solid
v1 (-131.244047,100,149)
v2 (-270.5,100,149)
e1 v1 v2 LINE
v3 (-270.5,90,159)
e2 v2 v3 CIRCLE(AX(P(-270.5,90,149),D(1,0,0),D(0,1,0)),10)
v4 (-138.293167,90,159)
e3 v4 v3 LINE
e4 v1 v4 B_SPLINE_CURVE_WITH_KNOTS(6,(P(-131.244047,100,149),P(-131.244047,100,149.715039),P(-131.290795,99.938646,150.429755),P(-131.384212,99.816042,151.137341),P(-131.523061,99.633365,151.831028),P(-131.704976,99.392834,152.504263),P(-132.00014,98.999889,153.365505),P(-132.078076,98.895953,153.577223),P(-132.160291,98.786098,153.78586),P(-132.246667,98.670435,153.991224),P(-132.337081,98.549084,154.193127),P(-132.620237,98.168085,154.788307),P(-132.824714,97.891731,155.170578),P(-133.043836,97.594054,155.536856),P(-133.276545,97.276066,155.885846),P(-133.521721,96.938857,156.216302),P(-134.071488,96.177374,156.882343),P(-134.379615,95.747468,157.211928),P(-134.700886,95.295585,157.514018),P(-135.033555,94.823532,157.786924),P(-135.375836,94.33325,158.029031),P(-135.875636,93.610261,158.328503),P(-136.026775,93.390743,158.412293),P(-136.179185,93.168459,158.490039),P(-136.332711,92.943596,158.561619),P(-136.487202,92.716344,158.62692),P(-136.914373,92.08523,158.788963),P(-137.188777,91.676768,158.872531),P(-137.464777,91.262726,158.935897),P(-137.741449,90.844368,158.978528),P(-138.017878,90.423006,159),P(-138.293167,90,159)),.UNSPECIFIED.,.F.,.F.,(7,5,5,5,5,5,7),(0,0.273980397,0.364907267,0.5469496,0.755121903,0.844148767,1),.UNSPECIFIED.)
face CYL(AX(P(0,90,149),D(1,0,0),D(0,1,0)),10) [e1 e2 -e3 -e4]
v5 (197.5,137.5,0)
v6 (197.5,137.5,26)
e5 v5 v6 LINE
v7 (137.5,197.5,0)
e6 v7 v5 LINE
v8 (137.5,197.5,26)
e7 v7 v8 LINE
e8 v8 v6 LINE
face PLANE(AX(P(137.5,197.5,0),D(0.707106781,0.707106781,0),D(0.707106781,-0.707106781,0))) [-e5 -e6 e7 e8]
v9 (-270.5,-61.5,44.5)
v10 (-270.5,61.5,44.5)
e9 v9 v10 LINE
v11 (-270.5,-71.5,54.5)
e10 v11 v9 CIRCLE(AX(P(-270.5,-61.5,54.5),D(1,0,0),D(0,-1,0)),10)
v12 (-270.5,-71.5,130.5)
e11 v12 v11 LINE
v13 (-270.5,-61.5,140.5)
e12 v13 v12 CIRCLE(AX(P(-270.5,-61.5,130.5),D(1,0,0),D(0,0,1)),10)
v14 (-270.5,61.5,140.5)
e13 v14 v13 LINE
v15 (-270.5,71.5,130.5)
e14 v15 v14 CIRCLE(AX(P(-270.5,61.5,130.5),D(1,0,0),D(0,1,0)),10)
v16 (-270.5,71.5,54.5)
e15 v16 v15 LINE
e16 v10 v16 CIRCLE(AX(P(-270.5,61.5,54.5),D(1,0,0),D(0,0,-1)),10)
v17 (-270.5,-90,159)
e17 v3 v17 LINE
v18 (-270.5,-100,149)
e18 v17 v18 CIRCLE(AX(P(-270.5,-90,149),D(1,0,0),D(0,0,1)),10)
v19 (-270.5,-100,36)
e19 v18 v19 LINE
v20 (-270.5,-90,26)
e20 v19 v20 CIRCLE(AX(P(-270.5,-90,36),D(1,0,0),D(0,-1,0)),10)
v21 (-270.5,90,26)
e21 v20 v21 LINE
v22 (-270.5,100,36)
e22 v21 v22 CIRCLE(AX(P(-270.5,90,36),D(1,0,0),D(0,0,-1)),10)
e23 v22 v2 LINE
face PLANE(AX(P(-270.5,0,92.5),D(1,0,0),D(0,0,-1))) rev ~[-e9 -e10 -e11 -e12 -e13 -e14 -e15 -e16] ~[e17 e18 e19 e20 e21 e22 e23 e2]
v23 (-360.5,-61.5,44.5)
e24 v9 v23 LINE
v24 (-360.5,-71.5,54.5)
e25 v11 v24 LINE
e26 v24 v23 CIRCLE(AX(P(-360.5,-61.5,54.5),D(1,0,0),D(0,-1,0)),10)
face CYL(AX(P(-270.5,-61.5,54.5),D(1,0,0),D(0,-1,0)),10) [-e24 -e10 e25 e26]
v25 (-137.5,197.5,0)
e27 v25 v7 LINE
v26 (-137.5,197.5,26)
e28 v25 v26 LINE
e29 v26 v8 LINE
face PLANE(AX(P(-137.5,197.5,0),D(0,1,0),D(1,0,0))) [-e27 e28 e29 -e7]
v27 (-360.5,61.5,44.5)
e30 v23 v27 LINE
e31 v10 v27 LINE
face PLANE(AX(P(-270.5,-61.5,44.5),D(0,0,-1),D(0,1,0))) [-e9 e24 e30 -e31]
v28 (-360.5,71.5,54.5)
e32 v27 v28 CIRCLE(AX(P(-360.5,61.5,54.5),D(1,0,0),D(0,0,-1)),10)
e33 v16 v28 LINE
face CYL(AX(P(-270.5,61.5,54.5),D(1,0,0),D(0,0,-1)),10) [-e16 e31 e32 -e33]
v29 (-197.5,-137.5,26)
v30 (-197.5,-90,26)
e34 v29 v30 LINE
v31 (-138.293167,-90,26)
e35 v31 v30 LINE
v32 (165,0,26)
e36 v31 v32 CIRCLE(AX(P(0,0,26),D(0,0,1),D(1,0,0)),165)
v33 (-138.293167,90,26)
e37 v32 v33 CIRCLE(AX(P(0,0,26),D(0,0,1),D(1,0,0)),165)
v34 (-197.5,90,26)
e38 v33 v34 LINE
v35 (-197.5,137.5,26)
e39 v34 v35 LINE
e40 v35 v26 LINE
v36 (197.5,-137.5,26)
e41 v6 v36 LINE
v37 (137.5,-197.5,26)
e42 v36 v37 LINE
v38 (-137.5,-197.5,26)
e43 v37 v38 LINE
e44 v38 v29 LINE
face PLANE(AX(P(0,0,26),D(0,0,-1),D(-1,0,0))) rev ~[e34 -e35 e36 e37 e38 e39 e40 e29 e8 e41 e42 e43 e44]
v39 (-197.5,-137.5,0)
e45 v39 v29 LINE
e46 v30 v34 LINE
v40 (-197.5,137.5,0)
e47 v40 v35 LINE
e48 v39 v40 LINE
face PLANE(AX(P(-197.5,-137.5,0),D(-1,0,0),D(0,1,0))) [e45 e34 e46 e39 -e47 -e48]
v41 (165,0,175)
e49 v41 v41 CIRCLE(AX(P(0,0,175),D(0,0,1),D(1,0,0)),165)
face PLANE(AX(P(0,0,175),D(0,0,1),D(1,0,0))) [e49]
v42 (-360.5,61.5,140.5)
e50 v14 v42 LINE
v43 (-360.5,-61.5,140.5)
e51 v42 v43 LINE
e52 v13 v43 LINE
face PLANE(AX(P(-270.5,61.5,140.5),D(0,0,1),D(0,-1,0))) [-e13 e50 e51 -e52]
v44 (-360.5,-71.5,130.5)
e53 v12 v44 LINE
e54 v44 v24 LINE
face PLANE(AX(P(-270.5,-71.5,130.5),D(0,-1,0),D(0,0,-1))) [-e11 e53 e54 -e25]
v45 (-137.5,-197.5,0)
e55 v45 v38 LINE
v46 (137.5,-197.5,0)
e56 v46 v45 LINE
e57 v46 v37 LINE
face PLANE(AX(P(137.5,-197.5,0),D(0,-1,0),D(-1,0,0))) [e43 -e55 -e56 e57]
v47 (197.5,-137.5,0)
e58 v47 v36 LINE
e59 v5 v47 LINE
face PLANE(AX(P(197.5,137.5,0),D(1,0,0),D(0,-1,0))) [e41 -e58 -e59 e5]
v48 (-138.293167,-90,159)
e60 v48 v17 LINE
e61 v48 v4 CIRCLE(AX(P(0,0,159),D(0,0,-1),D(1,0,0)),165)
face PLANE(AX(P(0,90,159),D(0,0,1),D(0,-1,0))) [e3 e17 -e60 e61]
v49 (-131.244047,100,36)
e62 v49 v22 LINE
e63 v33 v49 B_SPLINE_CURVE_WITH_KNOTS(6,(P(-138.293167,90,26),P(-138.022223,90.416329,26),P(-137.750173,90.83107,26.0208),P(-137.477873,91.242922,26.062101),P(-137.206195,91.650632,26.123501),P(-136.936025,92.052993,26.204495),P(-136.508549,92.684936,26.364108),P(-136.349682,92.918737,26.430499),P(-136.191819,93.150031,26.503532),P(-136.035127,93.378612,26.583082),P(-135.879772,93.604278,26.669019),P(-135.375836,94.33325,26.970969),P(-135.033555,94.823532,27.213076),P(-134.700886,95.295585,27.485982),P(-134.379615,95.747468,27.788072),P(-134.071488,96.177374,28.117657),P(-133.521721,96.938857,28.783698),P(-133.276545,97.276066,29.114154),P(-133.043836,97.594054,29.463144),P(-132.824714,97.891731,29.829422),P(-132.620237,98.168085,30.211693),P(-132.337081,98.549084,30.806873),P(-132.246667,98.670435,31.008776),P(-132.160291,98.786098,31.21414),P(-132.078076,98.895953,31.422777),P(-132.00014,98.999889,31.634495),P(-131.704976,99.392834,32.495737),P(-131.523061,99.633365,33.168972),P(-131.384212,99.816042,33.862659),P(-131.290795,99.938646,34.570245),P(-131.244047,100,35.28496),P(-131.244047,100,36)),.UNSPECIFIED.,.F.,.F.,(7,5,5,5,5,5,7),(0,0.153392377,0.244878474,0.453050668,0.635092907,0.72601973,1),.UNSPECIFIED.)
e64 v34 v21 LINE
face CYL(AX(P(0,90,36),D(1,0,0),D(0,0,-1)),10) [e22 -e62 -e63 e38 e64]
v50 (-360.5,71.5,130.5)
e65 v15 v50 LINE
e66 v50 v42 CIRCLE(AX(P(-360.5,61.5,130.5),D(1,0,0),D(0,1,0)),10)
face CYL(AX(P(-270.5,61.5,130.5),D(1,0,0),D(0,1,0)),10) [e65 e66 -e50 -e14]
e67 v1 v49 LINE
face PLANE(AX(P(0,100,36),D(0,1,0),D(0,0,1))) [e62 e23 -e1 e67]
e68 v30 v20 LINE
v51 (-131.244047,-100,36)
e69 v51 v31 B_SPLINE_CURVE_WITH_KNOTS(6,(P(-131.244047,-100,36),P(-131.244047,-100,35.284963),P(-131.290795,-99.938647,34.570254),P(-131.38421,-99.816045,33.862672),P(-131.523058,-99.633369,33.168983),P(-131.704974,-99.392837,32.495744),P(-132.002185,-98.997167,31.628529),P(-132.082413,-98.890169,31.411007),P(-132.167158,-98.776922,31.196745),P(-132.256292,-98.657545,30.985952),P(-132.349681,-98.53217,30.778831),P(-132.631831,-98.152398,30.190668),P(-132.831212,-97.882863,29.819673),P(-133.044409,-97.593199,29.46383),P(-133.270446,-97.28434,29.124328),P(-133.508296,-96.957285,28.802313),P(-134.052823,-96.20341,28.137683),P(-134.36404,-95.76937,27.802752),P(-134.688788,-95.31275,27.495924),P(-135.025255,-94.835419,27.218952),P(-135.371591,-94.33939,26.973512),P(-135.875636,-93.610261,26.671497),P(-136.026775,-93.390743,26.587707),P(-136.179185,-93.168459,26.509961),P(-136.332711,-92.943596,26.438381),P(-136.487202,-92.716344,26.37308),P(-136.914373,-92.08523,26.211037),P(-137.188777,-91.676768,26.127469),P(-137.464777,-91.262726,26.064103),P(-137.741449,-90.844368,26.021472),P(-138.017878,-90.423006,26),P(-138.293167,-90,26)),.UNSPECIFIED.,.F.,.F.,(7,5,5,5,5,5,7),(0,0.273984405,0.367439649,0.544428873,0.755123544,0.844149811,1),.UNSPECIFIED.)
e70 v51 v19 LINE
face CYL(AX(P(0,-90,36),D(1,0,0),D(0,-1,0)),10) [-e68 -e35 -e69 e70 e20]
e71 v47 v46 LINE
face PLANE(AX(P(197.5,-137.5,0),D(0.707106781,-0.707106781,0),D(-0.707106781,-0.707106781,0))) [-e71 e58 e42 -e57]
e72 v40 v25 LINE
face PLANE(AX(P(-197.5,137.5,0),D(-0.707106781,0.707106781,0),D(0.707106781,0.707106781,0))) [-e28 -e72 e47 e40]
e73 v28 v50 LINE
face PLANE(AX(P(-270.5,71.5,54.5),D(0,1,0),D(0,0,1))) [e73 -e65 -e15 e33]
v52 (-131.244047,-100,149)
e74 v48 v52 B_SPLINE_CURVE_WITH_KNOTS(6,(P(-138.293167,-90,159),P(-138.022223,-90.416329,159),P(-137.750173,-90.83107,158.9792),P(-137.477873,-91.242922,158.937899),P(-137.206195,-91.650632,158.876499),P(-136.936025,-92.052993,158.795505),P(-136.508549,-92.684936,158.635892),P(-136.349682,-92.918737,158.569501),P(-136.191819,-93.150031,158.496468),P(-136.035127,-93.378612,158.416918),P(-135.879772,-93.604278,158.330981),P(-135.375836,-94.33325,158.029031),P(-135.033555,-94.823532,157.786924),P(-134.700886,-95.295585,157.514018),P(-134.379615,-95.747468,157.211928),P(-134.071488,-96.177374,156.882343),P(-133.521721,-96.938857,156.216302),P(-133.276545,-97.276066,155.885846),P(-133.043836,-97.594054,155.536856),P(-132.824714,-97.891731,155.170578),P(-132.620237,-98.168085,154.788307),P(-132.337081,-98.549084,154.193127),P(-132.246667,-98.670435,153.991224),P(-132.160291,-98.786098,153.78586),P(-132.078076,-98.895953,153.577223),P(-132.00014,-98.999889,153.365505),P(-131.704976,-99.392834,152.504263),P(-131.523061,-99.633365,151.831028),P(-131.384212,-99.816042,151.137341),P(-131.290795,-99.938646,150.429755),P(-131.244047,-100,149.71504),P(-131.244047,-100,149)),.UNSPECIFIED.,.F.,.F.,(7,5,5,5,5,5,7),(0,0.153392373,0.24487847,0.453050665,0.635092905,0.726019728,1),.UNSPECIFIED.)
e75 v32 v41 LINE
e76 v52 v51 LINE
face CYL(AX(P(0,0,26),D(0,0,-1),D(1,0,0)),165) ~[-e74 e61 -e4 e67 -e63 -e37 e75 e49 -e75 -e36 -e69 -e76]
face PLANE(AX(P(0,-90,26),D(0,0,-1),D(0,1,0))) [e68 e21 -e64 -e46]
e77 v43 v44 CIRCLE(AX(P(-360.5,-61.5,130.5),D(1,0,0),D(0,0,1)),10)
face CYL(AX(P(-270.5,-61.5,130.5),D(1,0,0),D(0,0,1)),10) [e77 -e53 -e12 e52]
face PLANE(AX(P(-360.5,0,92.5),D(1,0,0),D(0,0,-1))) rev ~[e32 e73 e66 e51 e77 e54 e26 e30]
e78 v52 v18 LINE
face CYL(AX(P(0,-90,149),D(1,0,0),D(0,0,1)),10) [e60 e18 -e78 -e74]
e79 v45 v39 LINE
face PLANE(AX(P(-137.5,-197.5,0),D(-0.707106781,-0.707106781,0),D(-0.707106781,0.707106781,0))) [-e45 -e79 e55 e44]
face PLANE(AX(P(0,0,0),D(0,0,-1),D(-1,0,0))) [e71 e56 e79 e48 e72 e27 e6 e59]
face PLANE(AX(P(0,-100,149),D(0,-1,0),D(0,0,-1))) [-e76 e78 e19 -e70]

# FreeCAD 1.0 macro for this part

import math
import FreeCAD as App
import Part
import Sketcher

V = App.Vector


def add_polygon(sketch, points):
    """Adds a closed chain of lines whose ends are joined by coincident constraints."""
    first, n = sketch.GeometryCount, len(points)
    for a, b in zip(points, points[1:] + points[:1]):
        sketch.addGeometry(Part.LineSegment(App.Vector(*a, 0), App.Vector(*b, 0)), False)
    for i in range(n):
        sketch.addConstraint(Sketcher.Constraint("Coincident", first + i, 2, first + (i + 1) % n, 1))

doc = App.newDocument("Part")
body = doc.addObject("PartDesign::Body", "Body")

sketch1 = body.newObject("Sketcher::SketchObject", "Sketch")
sketch1.AttachmentSupport = (doc.getObject("XY_Plane"), [""])
sketch1.MapMode = "FlatFace"
add_polygon(sketch1, [(-138, 198), (-198, 138), (-198, -138), (-138, -198), (138, -198), (198, -138), (198, 138), (138, 198)])
sketch1.addConstraint([
    Sketcher.Constraint("Vertical", 1),
    Sketcher.Constraint("Horizontal", 3),
    Sketcher.Constraint("Vertical", 5),
    Sketcher.Constraint("Horizontal", 7),
    Sketcher.Constraint("Symmetric", 0, 2, 4, 2, -1, 1),
    Sketcher.Constraint("Symmetric", 2, 2, 6, 2, -1, 1),
    Sketcher.Constraint("Perpendicular", 0, 2),
    Sketcher.Constraint("Perpendicular", 2, 4),
    Sketcher.Constraint("Perpendicular", 4, 6),
    Sketcher.Constraint("Horizontal", 1, 2, 4, 2),
    Sketcher.Constraint("Vertical", 3, 2, 6, 2),
    Sketcher.Constraint("Equal", 7, 1),
    Sketcher.Constraint("DistanceX", 3, 1, 3, 2, 275.0),
    Sketcher.Constraint("DistanceX", 1, 2, 2, 2, 60.0),
])
pad1 = body.newObject("PartDesign::Pad", "Pad")
pad1.Profile = sketch1
pad1.Length = 26

sketch2 = body.newObject("Sketcher::SketchObject", "Sketch001")
sketch2.AttachmentSupport = (doc.getObject("XY_Plane"), [""])
sketch2.MapMode = "FlatFace"
sketch2.AttachmentOffset = App.Placement(V(0, 0, 26), App.Rotation())
sketch2.addGeometry(Part.Circle(V(0, 0, 0), V(0, 0, 1), 165), False)
sketch2.addConstraint([
    Sketcher.Constraint("Coincident", 0, 3, -1, 1),
    Sketcher.Constraint("Diameter", 0, 330.0),
])
pad2 = body.newObject("PartDesign::Pad", "Pad001")
pad2.Profile = sketch2
pad2.Length = 149

sketch3 = body.newObject("Sketcher::SketchObject", "Sketch002")
sketch3.AttachmentSupport = (doc.getObject("YZ_Plane"), [""])
sketch3.MapMode = "FlatFace"
sketch3.addGeometry([
    Part.LineSegment(V(100, 36, 0), V(100, 149, 0)),
    Part.ArcOfCircle(Part.Circle(V(90, 149, 0), V(0, 0, 1), 10), math.radians(0), math.radians(90)),
    Part.LineSegment(V(90, 159, 0), V(-90, 159, 0)),
    Part.ArcOfCircle(Part.Circle(V(-90, 149, 0), V(0, 0, 1), 10), math.radians(90), math.radians(180)),
    Part.LineSegment(V(-100, 149, 0), V(-100, 36, 0)),
    Part.ArcOfCircle(Part.Circle(V(-90, 36, 0), V(0, 0, 1), 10), math.radians(180), math.radians(270)),
    Part.LineSegment(V(-90, 26, 0), V(90, 26, 0)),
    Part.ArcOfCircle(Part.Circle(V(90, 36, 0), V(0, 0, 1), 10), math.radians(-90), math.radians(0)),
], False)
sketch3.addConstraint([
    Sketcher.Constraint("Tangent", 0, 2, 1, 1),
    Sketcher.Constraint("Tangent", 1, 2, 2, 1),
    Sketcher.Constraint("Tangent", 2, 2, 3, 1),
    Sketcher.Constraint("Tangent", 3, 2, 4, 1),
    Sketcher.Constraint("Tangent", 4, 2, 5, 1),
    Sketcher.Constraint("Tangent", 5, 2, 6, 1),
    Sketcher.Constraint("Tangent", 6, 2, 7, 1),
    Sketcher.Constraint("Tangent", 7, 2, 0, 1),
    Sketcher.Constraint("Vertical", 0),
    Sketcher.Constraint("Horizontal", 2),
    Sketcher.Constraint("Vertical", 4),
    Sketcher.Constraint("Horizontal", 6),
    Sketcher.Constraint("Equal", 1, 3),
    Sketcher.Constraint("Equal", 3, 5),
    Sketcher.Constraint("Equal", 5, 7),
    Sketcher.Constraint("Radius", 1, 10.0),
    Sketcher.Constraint("DistanceX", 2, 2, 2, 1, 180.0),
    Sketcher.Constraint("DistanceY", 0, 1, 0, 2, 113.0),
    Sketcher.Constraint("DistanceX", -1, 1, 1, 3, 90.0),
    Sketcher.Constraint("DistanceY", -1, 1, 1, 3, 149.0),
])
pad3 = body.newObject("PartDesign::Pad", "Pad002")
pad3.Profile = sketch3
pad3.Length = 270.5
pad3.Reversed = True

sketch4 = body.newObject("Sketcher::SketchObject", "Sketch003")
sketch4.AttachmentSupport = (doc.getObject("YZ_Plane"), [""])
sketch4.MapMode = "FlatFace"
sketch4.AttachmentOffset = App.Placement(V(0, 0, -270.5), App.Rotation())
sketch4.addGeometry([
    Part.LineSegment(V(72, 130, 0), V(72, 54, 0)),
    Part.ArcOfCircle(Part.Circle(V(62, 54, 0), V(0, 0, 1), 10), math.radians(-90), math.radians(0)),
    Part.LineSegment(V(62, 44, 0), V(-62, 44, 0)),
    Part.ArcOfCircle(Part.Circle(V(-62, 54, 0), V(0, 0, 1), 10), math.radians(180), math.radians(270)),
    Part.LineSegment(V(-72, 54, 0), V(-72, 130, 0)),
    Part.ArcOfCircle(Part.Circle(V(-62, 130, 0), V(0, 0, 1), 10), math.radians(90), math.radians(180)),
    Part.LineSegment(V(-62, 140, 0), V(62, 140, 0)),
    Part.ArcOfCircle(Part.Circle(V(62, 130, 0), V(0, 0, 1), 10), math.radians(0), math.radians(90)),
], False)
sketch4.addConstraint([
    Sketcher.Constraint("Tangent", 0, 2, 1, 2),
    Sketcher.Constraint("Tangent", 1, 1, 2, 1),
    Sketcher.Constraint("Tangent", 2, 2, 3, 2),
    Sketcher.Constraint("Tangent", 3, 1, 4, 1),
    Sketcher.Constraint("Tangent", 4, 2, 5, 2),
    Sketcher.Constraint("Tangent", 5, 1, 6, 1),
    Sketcher.Constraint("Tangent", 6, 2, 7, 2),
    Sketcher.Constraint("Tangent", 7, 1, 0, 1),
    Sketcher.Constraint("Vertical", 0),
    Sketcher.Constraint("Horizontal", 2),
    Sketcher.Constraint("Vertical", 4),
    Sketcher.Constraint("Horizontal", 6),
    Sketcher.Constraint("Equal", 1, 3),
    Sketcher.Constraint("Equal", 3, 5),
    Sketcher.Constraint("Equal", 5, 7),
    Sketcher.Constraint("Radius", 1, 10.0),
    Sketcher.Constraint("DistanceX", 2, 2, 2, 1, 123.0),
    Sketcher.Constraint("DistanceY", 0, 2, 0, 1, 76.0),
    Sketcher.Constraint("DistanceX", -1, 1, 1, 3, 61.5),
    Sketcher.Constraint("DistanceY", -1, 1, 1, 3, 54.5),
])
pad4 = body.newObject("PartDesign::Pad", "Pad003")
pad4.Profile = sketch4
pad4.Length = 90
pad4.Reversed = True

doc.recompute()
